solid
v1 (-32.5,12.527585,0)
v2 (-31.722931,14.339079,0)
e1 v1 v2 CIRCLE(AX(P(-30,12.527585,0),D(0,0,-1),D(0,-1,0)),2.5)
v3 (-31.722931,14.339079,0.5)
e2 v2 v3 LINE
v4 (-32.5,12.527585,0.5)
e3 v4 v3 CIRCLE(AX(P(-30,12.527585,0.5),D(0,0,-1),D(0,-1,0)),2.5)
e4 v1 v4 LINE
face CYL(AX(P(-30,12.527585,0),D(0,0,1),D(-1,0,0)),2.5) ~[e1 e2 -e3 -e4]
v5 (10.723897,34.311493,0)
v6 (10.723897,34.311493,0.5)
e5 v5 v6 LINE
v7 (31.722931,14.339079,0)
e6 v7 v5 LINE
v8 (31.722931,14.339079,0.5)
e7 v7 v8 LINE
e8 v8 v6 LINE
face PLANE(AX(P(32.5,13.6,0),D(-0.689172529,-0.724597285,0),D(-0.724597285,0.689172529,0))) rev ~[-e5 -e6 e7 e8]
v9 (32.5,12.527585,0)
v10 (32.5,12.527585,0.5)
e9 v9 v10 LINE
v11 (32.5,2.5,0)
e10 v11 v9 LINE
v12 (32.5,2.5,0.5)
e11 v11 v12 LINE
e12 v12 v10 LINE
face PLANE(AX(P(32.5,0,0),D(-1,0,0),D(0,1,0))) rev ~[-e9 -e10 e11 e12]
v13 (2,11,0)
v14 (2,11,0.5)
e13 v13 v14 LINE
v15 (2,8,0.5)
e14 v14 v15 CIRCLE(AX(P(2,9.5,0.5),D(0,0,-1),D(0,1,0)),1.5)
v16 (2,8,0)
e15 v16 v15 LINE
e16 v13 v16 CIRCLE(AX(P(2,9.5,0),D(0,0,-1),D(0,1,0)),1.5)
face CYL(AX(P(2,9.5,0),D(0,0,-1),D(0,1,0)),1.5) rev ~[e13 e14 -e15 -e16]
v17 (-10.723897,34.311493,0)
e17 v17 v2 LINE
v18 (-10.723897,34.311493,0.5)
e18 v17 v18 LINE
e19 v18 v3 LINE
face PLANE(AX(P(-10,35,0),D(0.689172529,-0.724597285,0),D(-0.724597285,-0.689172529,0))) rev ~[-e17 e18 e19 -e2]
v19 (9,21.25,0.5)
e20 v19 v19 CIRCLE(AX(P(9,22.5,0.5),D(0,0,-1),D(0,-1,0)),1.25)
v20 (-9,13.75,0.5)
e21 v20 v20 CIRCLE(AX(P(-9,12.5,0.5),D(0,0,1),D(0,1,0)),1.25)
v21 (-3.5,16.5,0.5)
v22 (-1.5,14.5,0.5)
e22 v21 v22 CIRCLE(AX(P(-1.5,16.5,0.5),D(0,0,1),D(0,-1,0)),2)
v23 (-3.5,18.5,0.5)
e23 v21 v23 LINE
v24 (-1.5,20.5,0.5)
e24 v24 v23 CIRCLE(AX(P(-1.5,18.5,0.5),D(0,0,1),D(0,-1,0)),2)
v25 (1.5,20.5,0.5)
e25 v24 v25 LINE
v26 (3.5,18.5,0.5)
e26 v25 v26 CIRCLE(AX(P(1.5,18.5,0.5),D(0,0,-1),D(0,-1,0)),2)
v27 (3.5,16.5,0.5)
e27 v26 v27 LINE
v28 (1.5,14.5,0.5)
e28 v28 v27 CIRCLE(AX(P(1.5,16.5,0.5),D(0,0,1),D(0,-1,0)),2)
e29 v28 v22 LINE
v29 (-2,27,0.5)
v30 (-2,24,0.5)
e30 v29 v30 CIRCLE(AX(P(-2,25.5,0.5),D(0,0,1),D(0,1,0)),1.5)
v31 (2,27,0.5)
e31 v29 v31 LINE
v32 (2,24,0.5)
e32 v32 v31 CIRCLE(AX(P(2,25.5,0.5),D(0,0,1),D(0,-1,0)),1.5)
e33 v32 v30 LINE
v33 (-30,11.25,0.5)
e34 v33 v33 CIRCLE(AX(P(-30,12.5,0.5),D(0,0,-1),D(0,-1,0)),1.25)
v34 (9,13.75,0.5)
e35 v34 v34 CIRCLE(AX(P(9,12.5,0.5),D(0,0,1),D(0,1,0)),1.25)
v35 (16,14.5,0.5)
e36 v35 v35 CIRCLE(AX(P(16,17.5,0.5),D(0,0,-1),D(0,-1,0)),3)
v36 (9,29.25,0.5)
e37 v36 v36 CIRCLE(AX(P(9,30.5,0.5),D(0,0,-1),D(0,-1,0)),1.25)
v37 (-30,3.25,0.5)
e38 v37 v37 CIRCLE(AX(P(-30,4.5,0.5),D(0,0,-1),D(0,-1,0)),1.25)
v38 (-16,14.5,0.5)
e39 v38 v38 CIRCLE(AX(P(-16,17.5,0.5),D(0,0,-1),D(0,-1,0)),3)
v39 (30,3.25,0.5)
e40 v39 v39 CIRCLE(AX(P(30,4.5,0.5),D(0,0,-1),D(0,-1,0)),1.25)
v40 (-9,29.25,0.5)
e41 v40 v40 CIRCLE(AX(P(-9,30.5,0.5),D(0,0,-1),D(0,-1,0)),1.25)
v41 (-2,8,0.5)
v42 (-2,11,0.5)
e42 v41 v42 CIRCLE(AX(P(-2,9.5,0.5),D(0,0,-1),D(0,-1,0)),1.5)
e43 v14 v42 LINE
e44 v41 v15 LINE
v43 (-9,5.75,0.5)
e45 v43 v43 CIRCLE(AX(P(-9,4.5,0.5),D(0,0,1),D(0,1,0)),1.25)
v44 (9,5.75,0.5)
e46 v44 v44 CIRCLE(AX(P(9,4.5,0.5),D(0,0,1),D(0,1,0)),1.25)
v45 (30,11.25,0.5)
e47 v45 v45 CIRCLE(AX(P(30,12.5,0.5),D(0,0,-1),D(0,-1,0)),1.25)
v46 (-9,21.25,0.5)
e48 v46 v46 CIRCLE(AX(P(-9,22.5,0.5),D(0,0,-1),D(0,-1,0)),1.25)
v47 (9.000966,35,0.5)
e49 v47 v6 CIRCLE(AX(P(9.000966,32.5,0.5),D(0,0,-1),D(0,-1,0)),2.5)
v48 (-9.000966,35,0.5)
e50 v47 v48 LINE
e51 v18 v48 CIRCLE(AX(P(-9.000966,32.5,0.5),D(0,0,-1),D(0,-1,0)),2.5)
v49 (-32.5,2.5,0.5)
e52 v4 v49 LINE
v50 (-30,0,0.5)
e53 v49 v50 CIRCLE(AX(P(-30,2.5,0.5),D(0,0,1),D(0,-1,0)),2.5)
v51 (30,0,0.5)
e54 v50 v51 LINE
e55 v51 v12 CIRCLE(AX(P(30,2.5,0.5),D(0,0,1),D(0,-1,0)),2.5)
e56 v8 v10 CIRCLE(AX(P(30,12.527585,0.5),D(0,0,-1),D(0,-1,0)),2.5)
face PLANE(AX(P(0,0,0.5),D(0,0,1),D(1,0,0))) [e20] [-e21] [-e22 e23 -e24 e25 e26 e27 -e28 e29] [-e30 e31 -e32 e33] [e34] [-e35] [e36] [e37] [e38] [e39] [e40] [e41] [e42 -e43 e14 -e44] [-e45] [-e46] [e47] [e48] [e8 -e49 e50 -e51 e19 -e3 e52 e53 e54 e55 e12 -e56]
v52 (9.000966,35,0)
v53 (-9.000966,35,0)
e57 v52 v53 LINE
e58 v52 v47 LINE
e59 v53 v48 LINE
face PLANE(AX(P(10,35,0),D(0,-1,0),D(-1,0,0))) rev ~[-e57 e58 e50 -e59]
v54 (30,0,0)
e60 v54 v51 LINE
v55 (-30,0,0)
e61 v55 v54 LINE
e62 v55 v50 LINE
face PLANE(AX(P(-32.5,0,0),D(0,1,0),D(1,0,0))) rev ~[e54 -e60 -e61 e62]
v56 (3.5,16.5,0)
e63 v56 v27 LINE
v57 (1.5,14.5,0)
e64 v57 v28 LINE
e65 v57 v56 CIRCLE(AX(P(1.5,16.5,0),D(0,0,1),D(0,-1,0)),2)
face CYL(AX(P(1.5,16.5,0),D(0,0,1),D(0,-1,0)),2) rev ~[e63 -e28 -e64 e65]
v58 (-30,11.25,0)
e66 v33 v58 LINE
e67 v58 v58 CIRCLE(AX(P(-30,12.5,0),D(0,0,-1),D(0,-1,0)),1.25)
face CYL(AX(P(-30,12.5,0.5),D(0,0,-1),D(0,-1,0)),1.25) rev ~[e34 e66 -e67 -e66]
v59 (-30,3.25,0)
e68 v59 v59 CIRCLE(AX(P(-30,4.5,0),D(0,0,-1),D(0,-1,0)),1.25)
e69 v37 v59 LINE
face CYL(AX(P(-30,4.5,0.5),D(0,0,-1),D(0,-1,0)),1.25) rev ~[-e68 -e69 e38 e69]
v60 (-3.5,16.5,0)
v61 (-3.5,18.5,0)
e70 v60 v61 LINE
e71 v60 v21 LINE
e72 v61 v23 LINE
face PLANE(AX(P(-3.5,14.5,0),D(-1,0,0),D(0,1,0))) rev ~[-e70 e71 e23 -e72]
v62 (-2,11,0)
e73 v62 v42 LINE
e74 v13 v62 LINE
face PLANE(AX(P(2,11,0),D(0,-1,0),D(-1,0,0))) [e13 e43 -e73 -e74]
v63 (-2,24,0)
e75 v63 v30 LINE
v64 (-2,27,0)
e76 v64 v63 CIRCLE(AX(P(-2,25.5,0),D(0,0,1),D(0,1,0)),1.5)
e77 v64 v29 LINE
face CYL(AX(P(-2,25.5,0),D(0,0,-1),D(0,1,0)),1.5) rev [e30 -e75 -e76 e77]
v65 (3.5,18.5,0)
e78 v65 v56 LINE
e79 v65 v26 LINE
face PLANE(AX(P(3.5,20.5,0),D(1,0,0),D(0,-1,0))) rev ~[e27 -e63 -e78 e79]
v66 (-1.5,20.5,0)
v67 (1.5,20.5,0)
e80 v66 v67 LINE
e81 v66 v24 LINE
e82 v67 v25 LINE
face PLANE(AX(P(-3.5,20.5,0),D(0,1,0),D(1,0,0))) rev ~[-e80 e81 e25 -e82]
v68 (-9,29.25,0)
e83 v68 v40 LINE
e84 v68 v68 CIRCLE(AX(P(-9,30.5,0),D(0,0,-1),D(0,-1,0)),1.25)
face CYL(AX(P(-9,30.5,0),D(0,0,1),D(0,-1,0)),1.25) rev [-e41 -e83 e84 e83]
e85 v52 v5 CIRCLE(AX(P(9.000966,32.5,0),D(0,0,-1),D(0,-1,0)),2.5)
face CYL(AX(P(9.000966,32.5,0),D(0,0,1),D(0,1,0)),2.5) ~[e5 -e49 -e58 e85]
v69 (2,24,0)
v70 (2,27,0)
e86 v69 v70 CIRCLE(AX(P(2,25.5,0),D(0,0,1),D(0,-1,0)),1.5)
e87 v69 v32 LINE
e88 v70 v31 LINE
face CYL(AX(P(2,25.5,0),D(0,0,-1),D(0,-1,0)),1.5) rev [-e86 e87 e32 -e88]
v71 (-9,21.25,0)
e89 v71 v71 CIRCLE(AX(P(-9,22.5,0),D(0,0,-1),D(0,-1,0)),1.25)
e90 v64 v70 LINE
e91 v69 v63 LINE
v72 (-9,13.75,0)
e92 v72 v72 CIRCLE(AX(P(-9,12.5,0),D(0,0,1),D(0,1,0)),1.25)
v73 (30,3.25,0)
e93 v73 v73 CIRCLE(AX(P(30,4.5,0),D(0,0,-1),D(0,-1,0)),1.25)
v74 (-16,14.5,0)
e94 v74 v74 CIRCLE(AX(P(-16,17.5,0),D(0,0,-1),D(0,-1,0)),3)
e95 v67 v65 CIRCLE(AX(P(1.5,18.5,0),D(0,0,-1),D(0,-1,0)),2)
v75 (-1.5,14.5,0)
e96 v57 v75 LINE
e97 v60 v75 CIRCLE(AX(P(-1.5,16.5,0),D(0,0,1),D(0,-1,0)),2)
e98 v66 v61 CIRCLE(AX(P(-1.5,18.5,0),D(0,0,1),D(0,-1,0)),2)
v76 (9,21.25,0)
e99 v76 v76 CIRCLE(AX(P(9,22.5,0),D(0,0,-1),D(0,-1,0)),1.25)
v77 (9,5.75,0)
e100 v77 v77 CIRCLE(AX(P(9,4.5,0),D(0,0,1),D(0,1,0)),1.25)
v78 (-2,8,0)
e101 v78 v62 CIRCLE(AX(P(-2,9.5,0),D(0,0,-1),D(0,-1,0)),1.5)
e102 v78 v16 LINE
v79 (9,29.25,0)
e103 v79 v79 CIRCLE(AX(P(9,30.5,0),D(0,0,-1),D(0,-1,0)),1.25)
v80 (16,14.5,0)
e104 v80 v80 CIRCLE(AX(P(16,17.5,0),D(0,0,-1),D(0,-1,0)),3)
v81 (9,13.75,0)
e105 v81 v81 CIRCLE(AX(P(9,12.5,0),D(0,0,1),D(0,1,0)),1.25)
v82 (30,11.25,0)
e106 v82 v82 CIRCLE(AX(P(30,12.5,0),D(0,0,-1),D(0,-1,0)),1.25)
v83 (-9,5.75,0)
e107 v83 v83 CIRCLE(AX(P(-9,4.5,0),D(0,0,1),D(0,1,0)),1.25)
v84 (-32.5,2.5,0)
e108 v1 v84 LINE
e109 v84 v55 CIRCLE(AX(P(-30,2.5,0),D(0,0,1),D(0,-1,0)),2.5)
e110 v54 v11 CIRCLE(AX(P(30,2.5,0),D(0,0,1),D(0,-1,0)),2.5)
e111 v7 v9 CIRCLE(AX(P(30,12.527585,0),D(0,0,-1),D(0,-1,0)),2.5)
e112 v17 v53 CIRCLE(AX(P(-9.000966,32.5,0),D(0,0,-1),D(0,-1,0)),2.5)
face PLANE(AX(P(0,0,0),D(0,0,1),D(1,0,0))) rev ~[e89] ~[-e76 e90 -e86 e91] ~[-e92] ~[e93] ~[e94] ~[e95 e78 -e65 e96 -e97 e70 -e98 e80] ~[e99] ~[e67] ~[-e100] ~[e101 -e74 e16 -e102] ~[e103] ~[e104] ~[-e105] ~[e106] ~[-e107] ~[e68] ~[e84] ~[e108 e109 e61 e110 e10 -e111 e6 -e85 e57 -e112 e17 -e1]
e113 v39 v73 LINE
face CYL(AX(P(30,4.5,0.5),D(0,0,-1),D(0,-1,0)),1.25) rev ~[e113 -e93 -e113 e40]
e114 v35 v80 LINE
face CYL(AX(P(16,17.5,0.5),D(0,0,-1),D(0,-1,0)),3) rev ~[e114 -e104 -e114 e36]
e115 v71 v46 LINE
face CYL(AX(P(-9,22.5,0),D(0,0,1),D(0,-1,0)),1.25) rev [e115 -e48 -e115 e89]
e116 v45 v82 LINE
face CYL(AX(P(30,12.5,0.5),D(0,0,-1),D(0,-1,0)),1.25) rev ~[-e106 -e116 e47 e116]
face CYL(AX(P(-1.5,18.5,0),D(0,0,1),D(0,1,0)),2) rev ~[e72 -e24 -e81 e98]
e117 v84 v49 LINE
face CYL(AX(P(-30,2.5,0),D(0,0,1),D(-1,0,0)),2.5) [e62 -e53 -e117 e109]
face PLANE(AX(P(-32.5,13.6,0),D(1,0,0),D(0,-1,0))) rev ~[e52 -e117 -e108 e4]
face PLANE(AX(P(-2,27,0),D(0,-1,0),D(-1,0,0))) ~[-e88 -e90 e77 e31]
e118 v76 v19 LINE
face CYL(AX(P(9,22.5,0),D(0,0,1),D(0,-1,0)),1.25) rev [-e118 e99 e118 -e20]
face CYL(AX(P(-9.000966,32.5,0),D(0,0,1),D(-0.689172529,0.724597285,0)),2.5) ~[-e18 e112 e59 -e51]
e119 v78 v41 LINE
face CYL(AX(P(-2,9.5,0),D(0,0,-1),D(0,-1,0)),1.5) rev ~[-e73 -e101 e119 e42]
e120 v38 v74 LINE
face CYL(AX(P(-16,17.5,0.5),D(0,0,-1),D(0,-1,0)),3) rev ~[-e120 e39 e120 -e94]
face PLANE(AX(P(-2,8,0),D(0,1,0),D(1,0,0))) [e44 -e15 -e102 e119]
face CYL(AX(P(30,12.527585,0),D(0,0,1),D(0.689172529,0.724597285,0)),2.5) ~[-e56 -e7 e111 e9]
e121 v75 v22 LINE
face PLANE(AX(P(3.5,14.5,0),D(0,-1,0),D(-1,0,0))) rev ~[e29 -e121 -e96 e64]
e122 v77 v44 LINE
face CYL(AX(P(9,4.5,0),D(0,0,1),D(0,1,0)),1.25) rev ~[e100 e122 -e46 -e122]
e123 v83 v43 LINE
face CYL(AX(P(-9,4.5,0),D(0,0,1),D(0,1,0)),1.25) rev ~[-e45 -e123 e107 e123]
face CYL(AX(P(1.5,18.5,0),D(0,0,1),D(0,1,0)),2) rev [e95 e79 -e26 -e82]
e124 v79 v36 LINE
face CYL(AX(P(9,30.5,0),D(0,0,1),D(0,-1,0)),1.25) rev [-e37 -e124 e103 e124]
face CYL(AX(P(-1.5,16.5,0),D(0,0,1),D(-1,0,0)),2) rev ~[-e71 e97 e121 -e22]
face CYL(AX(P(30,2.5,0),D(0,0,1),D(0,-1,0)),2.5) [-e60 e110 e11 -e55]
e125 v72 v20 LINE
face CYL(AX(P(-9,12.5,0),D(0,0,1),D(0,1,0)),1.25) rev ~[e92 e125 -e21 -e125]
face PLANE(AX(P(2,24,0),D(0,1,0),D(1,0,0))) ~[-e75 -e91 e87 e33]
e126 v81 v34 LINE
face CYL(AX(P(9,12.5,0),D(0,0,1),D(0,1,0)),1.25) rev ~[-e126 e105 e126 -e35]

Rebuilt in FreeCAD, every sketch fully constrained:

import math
import FreeCAD as App
import Part
import Sketcher

V = App.Vector


def edges_at(feature, points):
    """Names of the edges that pass closest to the given points."""
    edges = feature.Shape.Edges
    near = lambda p: min(range(len(edges)), key=lambda i: edges[i].distToShape(Part.Vertex(*p))[0])
    return sorted({f"Edge{near(p) + 1}" for p in points})

doc = App.newDocument("Part")
body = doc.addObject("PartDesign::Body", "Body")

# Sketch on XY plane
sketch1 = body.newObject("Sketcher::SketchObject", "Sketch")
sketch1.AttachmentSupport = (doc.getObject("XY_Plane"), [""])
sketch1.MapMode = "FlatFace"
sketch1.addGeometry([
    Part.LineSegment(V(-32, 14, 0), V(-32, 0, 0)),  # 0
    Part.LineSegment(V(-32, 0, 0), V(32, 0, 0)),  # 1
    Part.LineSegment(V(32, 0, 0), V(32, 14, 0)),  # 2
    Part.LineSegment(V(32, 14, 0), V(10, 35, 0)),  # 3
    Part.LineSegment(V(10, 35, 0), V(-10, 35, 0)),  # 4
    Part.LineSegment(V(-10, 35, 0), V(-32, 14, 0)),  # 5
], False)
sketch1.addConstraint([
    Sketcher.Constraint("Coincident", 0, 2, 1, 1),
    Sketcher.Constraint("Coincident", 1, 2, 2, 1),
    Sketcher.Constraint("Coincident", 2, 2, 3, 1),
    Sketcher.Constraint("Coincident", 3, 2, 4, 1),
    Sketcher.Constraint("Coincident", 4, 2, 5, 1),
    Sketcher.Constraint("Coincident", 5, 2, 0, 1),
    Sketcher.Constraint("Vertical", 0),
    Sketcher.Constraint("Horizontal", 1),
    Sketcher.Constraint("Vertical", 2),
    Sketcher.Constraint("Horizontal", 4),
    Sketcher.Constraint("Symmetric", 0, 2, 1, 2, -1, 1),
    Sketcher.Constraint("Horizontal", 2, 2, 5, 2),
    Sketcher.Constraint("Equal", 3, 5),
    Sketcher.Constraint("DistanceX", 1, 1, 1, 2, 65.0),
    Sketcher.Constraint("DistanceX", 4, 2, 4, 1, 20.0),
    Sketcher.Constraint("DistanceY", 0, 2, 0, 1, 13.6),
    Sketcher.Constraint("DistanceY", -1, 1, 3, 2, 35.0),
])
pad1 = body.newObject("PartDesign::Pad", "Pad")
pad1.Profile = sketch1
pad1.Length = 0.5
doc.recompute()

fillet = body.newObject("PartDesign::Fillet", "Fillet")
fillet.Base = (pad1, edges_at(pad1, [
    (-32.5, 13.6, 0.25),
    (32.5, 13.6, 0.25),
    (10, 35, 0.25),
    (-10, 35, 0.25),
]))
fillet.Radius = 2.5

# Sketch on XY plane
sketch2 = body.newObject("Sketcher::SketchObject", "Sketch001")
sketch2.AttachmentSupport = (doc.getObject("XY_Plane"), [""])
sketch2.MapMode = "FlatFace"
sketch2.AttachmentOffset = App.Placement(V(0, 0, 0.5), App.Rotation())
sketch2.addGeometry([
    Part.Circle(V(-16, 17.5, 0), V(0, 0, 1), 3),
    Part.Circle(V(16, 17.5, 0), V(0, 0, 1), 3),
], False)
sketch2.addConstraint([
    Sketcher.Constraint("Equal", 0, 1),
    Sketcher.Constraint("Symmetric", 0, 3, 1, 3, -2),
    Sketcher.Constraint("Diameter", 0, 6.0),
    Sketcher.Constraint("DistanceX", 0, 3, -1, 1, 16.0),
    Sketcher.Constraint("DistanceY", -1, 1, 0, 3, 17.5),
])
doc.recompute()
hole = body.newObject("PartDesign::Hole", "Hole")
hole.Profile = sketch2
hole.ThreadType = "None"
hole.Diameter = 6
hole.DepthType = "Dimension"
hole.Depth = 0.5
hole.DrillPoint = "Flat"

# Sketch on XY plane
sketch3 = body.newObject("Sketcher::SketchObject", "Sketch002")
sketch3.AttachmentSupport = (doc.getObject("XY_Plane"), [""])
sketch3.MapMode = "FlatFace"
sketch3.AttachmentOffset = App.Placement(V(0, 0, 0.5), App.Rotation())
sketch3.addGeometry([
    Part.Circle(V(-30, 12.5, 0), V(0, 0, 1), 1.2),
    Part.Circle(V(30, 12.5, 0), V(0, 0, 1), 1.2),
    Part.Circle(V(30, 4.5, 0), V(0, 0, 1), 1.2),
    Part.Circle(V(-30, 4.5, 0), V(0, 0, 1), 1.2),
], False)
sketch3.addConstraint([
    Sketcher.Constraint("Equal", 0, 1),
    Sketcher.Constraint("Equal", 1, 2),
    Sketcher.Constraint("Equal", 2, 3),
    Sketcher.Constraint("Symmetric", 0, 3, 1, 3, -2),
    Sketcher.Constraint("Symmetric", 2, 3, 3, 3, -2),
    Sketcher.Constraint("Vertical", 1, 3, 2, 3),
    Sketcher.Constraint("Diameter", 0, 2.5),
    Sketcher.Constraint("DistanceX", 0, 3, -1, 1, 30.0),
    Sketcher.Constraint("DistanceY", 2, 3, 1, 3, 8.0),
    Sketcher.Constraint("DistanceY", -1, 1, 0, 3, 12.5),
])
doc.recompute()
hole2 = body.newObject("PartDesign::Hole", "Hole001")
hole2.Profile = sketch3
hole2.ThreadType = "None"
hole2.Diameter = 2.5
hole2.DepthType = "Dimension"
hole2.Depth = 0.5
hole2.DrillPoint = "Flat"

# Sketch on XY plane
sketch4 = body.newObject("Sketcher::SketchObject", "Sketch003")
sketch4.AttachmentSupport = (doc.getObject("XY_Plane"), [""])
sketch4.MapMode = "FlatFace"
sketch4.addGeometry([
    Part.LineSegment(V(4, 20, 0), V(4, 14, 0)),
    Part.LineSegment(V(4, 14, 0), V(-4, 14, 0)),
    Part.LineSegment(V(-4, 14, 0), V(-4, 20, 0)),
    Part.LineSegment(V(-4, 20, 0), V(4, 20, 0)),
], False)
sketch4.addConstraint([
    Sketcher.Constraint("Coincident", 0, 2, 1, 1),
    Sketcher.Constraint("Coincident", 1, 2, 2, 1),
    Sketcher.Constraint("Coincident", 2, 2, 3, 1),
    Sketcher.Constraint("Coincident", 3, 2, 0, 1),
    Sketcher.Constraint("Vertical", 0),
    Sketcher.Constraint("Horizontal", 1),
    Sketcher.Constraint("Vertical", 2),
    Sketcher.Constraint("Horizontal", 3),
    Sketcher.Constraint("DistanceX", 1, 2, 1, 1, 7.0),
    Sketcher.Constraint("DistanceY", 0, 2, 0, 1, 6.0),
    Sketcher.Constraint("DistanceX", -1, 1, 0, 2, 3.5),
    Sketcher.Constraint("DistanceY", -1, 1, 0, 2, 14.5),
])
pocket1 = body.newObject("PartDesign::Pocket", "Pocket")
pocket1.Profile = sketch4
pocket1.Length = 0.5
pocket1.Reversed = True
doc.recompute()

fillet2 = body.newObject("PartDesign::Fillet", "Fillet001")
fillet2.Base = (pocket1, edges_at(pocket1, [
    (3.5, 20.5, 0.25),
    (-3.5, 20.5, 0.25),
    (-3.5, 14.5, 0.25),
    (3.5, 14.5, 0.25),
]))
fillet2.Radius = 2

# Sketch on XY plane
sketch5 = body.newObject("Sketcher::SketchObject", "Sketch004")
sketch5.AttachmentSupport = (doc.getObject("XY_Plane"), [""])
sketch5.MapMode = "FlatFace"
sketch5.addGeometry([
    Part.LineSegment(V(-2, 11, 0), V(2, 11, 0)),
    Part.ArcOfCircle(Part.Circle(V(2, 9.5, 0), V(0, 0, 1), 1.5), math.radians(-90), math.radians(90)),
    Part.LineSegment(V(2, 8, 0), V(-2, 8, 0)),
    Part.ArcOfCircle(Part.Circle(V(-2, 9.5, 0), V(0, 0, 1), 1.5), math.radians(90), math.radians(270)),
], False)
sketch5.addConstraint([
    Sketcher.Constraint("Tangent", 0, 2, 1, 2),
    Sketcher.Constraint("Tangent", 1, 1, 2, 1),
    Sketcher.Constraint("Tangent", 2, 2, 3, 2),
    Sketcher.Constraint("Tangent", 3, 1, 0, 1),
    Sketcher.Constraint("Horizontal", 0),
    Sketcher.Constraint("Horizontal", 2),
    Sketcher.Constraint("Radius", 1, 1.5),
    Sketcher.Constraint("DistanceX", 0, 1, 0, 2, 4.0),
    Sketcher.Constraint("DistanceX", -1, 1, 1, 3, 2.0),
    Sketcher.Constraint("DistanceY", -1, 1, 0, 2, 11.0),
])
pocket2 = body.newObject("PartDesign::Pocket", "Pocket001")
pocket2.Profile = sketch5
pocket2.Length = 0.5
pocket2.Reversed = True
doc.recompute()

datumplane = body.newObject("PartDesign::Plane", "DatumPlane")
datumplane.AttachmentSupport = (doc.getObject("XZ_Plane"), [""])
datumplane.MapMode = "FlatFace"
datumplane.AttachmentOffset = App.Placement(V(0, 0, -17.5), App.Rotation())
mirrored = body.newObject("PartDesign::Mirrored", "Mirrored")
mirrored.Originals = [pocket2]
mirrored.MirrorPlane = (datumplane, [""])
body.Tip = mirrored

# Sketch on XY plane
sketch6 = body.newObject("Sketcher::SketchObject", "Sketch005")
sketch6.AttachmentSupport = (doc.getObject("XY_Plane"), [""])
sketch6.MapMode = "FlatFace"
sketch6.addGeometry([
    Part.Circle(V(9, 12.5, 0), V(0, 0, 1), 1.2),
    Part.Circle(V(-9, 12.5, 0), V(0, 0, 1), 1.2),
    Part.Circle(V(9, 4.5, 0), V(0, 0, 1), 1.2),
    Part.Circle(V(-9, 4.5, 0), V(0, 0, 1), 1.2),
], False)
sketch6.addConstraint([
    Sketcher.Constraint("Equal", 0, 1),
    Sketcher.Constraint("Equal", 1, 2),
    Sketcher.Constraint("Equal", 2, 3),
    Sketcher.Constraint("Symmetric", 0, 3, 1, 3, -2),
    Sketcher.Constraint("Symmetric", 2, 3, 3, 3, -2),
    Sketcher.Constraint("Vertical", 0, 3, 2, 3),
    Sketcher.Constraint("Diameter", 0, 2.5),
    Sketcher.Constraint("DistanceX", -1, 1, 0, 3, 9.0),
    Sketcher.Constraint("DistanceY", 2, 3, 0, 3, 8.0),
    Sketcher.Constraint("DistanceY", -1, 1, 0, 3, 12.5),
])
doc.recompute()
hole3 = body.newObject("PartDesign::Hole", "Hole002")
hole3.Profile = sketch6
hole3.ThreadType = "None"
hole3.Diameter = 2.5
hole3.DepthType = "Dimension"
hole3.Depth = 0.5
hole3.DrillPoint = "Flat"
hole3.Reversed = True
doc.recompute()

datumplane2 = body.newObject("PartDesign::Plane", "DatumPlane001")
datumplane2.AttachmentSupport = (doc.getObject("XZ_Plane"), [""])
datumplane2.MapMode = "FlatFace"
datumplane2.AttachmentOffset = App.Placement(V(0, 0, -17.5), App.Rotation())
mirrored2 = body.newObject("PartDesign::Mirrored", "Mirrored001")
mirrored2.Originals = [hole3]
mirrored2.MirrorPlane = (datumplane2, [""])
body.Tip = mirrored2
doc.recompute()

fillet3 = body.newObject("PartDesign::Fillet", "Fillet002")
fillet3.Base = (mirrored2, edges_at(mirrored2, [(-32.5, 0, 0.25), (32.5, 0, 0.25)]))
fillet3.Radius = 2.5

doc.recompute()
